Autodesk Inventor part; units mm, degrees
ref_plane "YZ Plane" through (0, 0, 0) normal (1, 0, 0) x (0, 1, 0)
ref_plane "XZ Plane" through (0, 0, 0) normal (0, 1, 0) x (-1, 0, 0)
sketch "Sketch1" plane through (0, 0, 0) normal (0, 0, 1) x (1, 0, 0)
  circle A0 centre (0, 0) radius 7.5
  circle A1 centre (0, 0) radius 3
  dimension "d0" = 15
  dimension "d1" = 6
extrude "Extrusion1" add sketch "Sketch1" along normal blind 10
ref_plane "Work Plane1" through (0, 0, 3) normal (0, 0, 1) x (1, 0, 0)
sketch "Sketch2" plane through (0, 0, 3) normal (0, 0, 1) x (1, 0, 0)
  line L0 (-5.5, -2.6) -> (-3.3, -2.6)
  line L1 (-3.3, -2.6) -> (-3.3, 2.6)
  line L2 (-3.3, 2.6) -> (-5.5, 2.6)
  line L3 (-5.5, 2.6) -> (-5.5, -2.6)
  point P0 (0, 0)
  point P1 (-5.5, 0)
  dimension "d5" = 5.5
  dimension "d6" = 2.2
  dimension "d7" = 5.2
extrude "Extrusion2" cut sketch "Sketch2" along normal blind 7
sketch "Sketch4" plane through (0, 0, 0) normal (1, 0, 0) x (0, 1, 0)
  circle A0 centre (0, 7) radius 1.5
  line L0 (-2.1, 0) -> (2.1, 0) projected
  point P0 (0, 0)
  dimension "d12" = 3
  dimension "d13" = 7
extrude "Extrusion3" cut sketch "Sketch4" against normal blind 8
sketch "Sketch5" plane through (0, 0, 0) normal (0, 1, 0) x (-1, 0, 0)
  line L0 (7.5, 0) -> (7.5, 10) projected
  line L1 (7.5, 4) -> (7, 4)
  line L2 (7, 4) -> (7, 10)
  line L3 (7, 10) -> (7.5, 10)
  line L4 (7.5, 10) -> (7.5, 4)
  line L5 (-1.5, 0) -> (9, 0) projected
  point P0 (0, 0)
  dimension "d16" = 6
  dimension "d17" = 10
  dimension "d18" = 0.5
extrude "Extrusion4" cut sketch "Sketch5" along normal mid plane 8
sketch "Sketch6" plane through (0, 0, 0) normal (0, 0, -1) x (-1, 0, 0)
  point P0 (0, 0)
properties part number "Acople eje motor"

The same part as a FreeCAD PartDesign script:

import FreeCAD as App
import Part
import Sketcher
Q = App.Units.Quantity

doc = App.newDocument("Part")
body = doc.addObject("PartDesign::Body", "Body")

# Sketch on XY plane
sketch1 = body.newObject("Sketcher::SketchObject", "Sketch")
sketch1.AttachmentSupport = (doc.getObject("XY_Plane"), [""])
sketch1.MapMode = "FlatFace"
sketch1.addGeometry([
    Part.Circle(App.Vector(0, 0, 0), App.Vector(0, 0, 1), 7.5),
    Part.Circle(App.Vector(0, 0, 0), App.Vector(0, 0, 1), 3),
], False)
sketch1.addConstraint([
    Sketcher.Constraint("Coincident", 0, 3, -1, 1),
    Sketcher.Constraint("Coincident", 1, 3, -1, 1),
    Sketcher.Constraint("Diameter", 0, Q("15 mm")),
    Sketcher.Constraint("Diameter", 1, Q("6 mm")),
])
pad1 = body.newObject("PartDesign::Pad", "Pad")
pad1.Profile = sketch1
pad1.Length = 10

# Sketch on XY plane
sketch2 = body.newObject("Sketcher::SketchObject", "Sketch001")
sketch2.AttachmentSupport = (doc.getObject("XY_Plane"), [""])
sketch2.MapMode = "FlatFace"
sketch2.AttachmentOffset = App.Placement(App.Vector(0, 0, 3), App.Rotation())
sketch2.addGeometry([
    Part.LineSegment(App.Vector(-5.5, 2.6, 0), App.Vector(-5.5, -2.6, 0)),
    Part.LineSegment(App.Vector(-5.5, -2.6, 0), App.Vector(-3.3, -2.6, 0)),
    Part.LineSegment(App.Vector(-3.3, -2.6, 0), App.Vector(-3.3, 2.6, 0)),
    Part.LineSegment(App.Vector(-3.3, 2.6, 0), App.Vector(-5.5, 2.6, 0)),
], False)
sketch2.addConstraint([
    Sketcher.Constraint("Coincident", 0, 2, 1, 1),
    Sketcher.Constraint("Coincident", 1, 2, 2, 1),
    Sketcher.Constraint("Coincident", 2, 2, 3, 1),
    Sketcher.Constraint("Coincident", 3, 2, 0, 1),
    Sketcher.Constraint("Vertical", 0),
    Sketcher.Constraint("Horizontal", 1),
    Sketcher.Constraint("Vertical", 2),
    Sketcher.Constraint("Horizontal", 3),
    Sketcher.Constraint("DistanceX", 1, 1, 1, 2, Q("2.2 mm")),
    Sketcher.Constraint("DistanceY", 0, 2, 0, 1, Q("5.2 mm")),
    Sketcher.Constraint("DistanceX", 0, 2, -1, 1, Q("5.5 mm")),
    Sketcher.Constraint("DistanceY", 0, 2, -1, 1, Q("2.6 mm")),
])
pocket1 = body.newObject("PartDesign::Pocket", "Pocket")
pocket1.Profile = sketch2
pocket1.Length = 7
pocket1.Reversed = True

# Sketch on YZ plane
sketch3 = body.newObject("Sketcher::SketchObject", "Sketch002")
sketch3.AttachmentSupport = (doc.getObject("YZ_Plane"), [""])
sketch3.MapMode = "FlatFace"
sketch3.addGeometry(Part.Circle(App.Vector(0, 7, 0), App.Vector(0, 0, 1), 1.5), False)
sketch3.addConstraint([
    Sketcher.Constraint("PointOnObject", 0, 3, -2),
    Sketcher.Constraint("Diameter", 0, Q("3 mm")),
    Sketcher.Constraint("DistanceY", -1, 1, 0, 3, Q("7 mm")),
])
pocket2 = body.newObject("PartDesign::Pocket", "Pocket001")
pocket2.Profile = sketch3
pocket2.Length = 8

# Sketch on XZ plane
sketch4 = body.newObject("Sketcher::SketchObject", "Sketch003")
sketch4.AttachmentSupport = (doc.getObject("XZ_Plane"), [""])
sketch4.MapMode = "FlatFace"
sketch4.addGeometry([
    Part.LineSegment(App.Vector(-7, 4, 0), App.Vector(-7.5, 4, 0)),
    Part.LineSegment(App.Vector(-7.5, 4, 0), App.Vector(-7.5, 10, 0)),
    Part.LineSegment(App.Vector(-7.5, 10, 0), App.Vector(-7, 10, 0)),
    Part.LineSegment(App.Vector(-7, 10, 0), App.Vector(-7, 4, 0)),
], False)
sketch4.addConstraint([
    Sketcher.Constraint("Coincident", 0, 2, 1, 1),
    Sketcher.Constraint("Coincident", 1, 2, 2, 1),
    Sketcher.Constraint("Coincident", 2, 2, 3, 1),
    Sketcher.Constraint("Coincident", 3, 2, 0, 1),
    Sketcher.Constraint("Horizontal", 0),
    Sketcher.Constraint("Vertical", 1),
    Sketcher.Constraint("Horizontal", 2),
    Sketcher.Constraint("Vertical", 3),
    Sketcher.Constraint("DistanceY", 1, 1, 1, 2, Q("6 mm")),
    Sketcher.Constraint("DistanceX", 0, 2, 0, 1, Q("0.5 mm")),
    Sketcher.Constraint("DistanceY", -1, 1, 1, 2, Q("10 mm")),
    Sketcher.Constraint("DistanceX", 2, 2, -1, 1, Q("7 mm")),
])
pocket3 = body.newObject("PartDesign::Pocket", "Pocket002")
pocket3.Profile = sketch4
pocket3.Length = 8
pocket3.Midplane = True

doc.recompute()
